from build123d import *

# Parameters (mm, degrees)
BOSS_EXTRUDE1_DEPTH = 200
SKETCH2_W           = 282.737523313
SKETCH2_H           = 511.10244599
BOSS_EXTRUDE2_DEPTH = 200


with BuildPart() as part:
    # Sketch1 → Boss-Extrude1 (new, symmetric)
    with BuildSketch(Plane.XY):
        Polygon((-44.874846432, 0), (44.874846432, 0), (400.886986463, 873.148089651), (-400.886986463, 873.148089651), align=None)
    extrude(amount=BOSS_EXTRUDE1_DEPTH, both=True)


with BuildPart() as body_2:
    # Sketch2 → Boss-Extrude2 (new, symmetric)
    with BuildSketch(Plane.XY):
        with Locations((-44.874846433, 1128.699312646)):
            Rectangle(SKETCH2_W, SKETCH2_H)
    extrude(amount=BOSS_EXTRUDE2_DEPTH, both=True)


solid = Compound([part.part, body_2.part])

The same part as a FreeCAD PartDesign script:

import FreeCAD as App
import Part
import Sketcher
from FreeCAD import Vector
Q = App.Units.Quantity

doc = App.newDocument("Part")
body = doc.addObject("PartDesign::Body", "Body")

sketch1 = doc.addObject("Sketcher::SketchObject", "Sketch")
body.addObject(sketch1)
sketch1.AttachmentSupport = (doc.XY_Plane, [""])
sketch1.MapMode = "FlatFace"
sketch1.addGeometry(Part.LineSegment(Vector(-45, 0, 0), Vector(45, 0, 0)), False)
sketch1.addGeometry(Part.LineSegment(Vector(45, 0, 0), Vector(401, 873, 0)), False)
sketch1.addGeometry(Part.LineSegment(Vector(401, 873, 0), Vector(-401, 873, 0)), False)
sketch1.addGeometry(Part.LineSegment(Vector(-401, 873, 0), Vector(-45, 0, 0)), False)
sketch1.addConstraint(Sketcher.Constraint("Coincident", 0, 2, 1, 1))
sketch1.addConstraint(Sketcher.Constraint("Coincident", 1, 2, 2, 1))
sketch1.addConstraint(Sketcher.Constraint("Coincident", 2, 2, 3, 1))
sketch1.addConstraint(Sketcher.Constraint("Coincident", 3, 2, 0, 1))
sketch1.addConstraint(Sketcher.Constraint("Horizontal", 0))
sketch1.addConstraint(Sketcher.Constraint("Horizontal", 2))
sketch1.addConstraint(Sketcher.Constraint("Symmetric", 0, 2, 3, 2, -1, 1))
sketch1.addConstraint(Sketcher.Constraint("Equal", 1, 3))
sketch1.addConstraint(Sketcher.Constraint("DistanceX", 0, 1, 0, 2, Q("89.749693 mm")))
sketch1.addConstraint(Sketcher.Constraint("DistanceX", 2, 2, 2, 1, Q("801.773973 mm")))
sketch1.addConstraint(Sketcher.Constraint("DistanceY", -1, 1, 1, 2, Q("873.14809 mm")))
pad1 = doc.addObject("PartDesign::Pad", "Pad")
body.addObject(pad1)
pad1.Profile = sketch1
pad1.Length = 400
pad1.Midplane = True
body2 = doc.addObject("PartDesign::Body", "Body001")

sketch2 = doc.addObject("Sketcher::SketchObject", "Sketch001")
body2.addObject(sketch2)
sketch2.AttachmentSupport = (doc.getObject("XY_Plane001"), [""])
sketch2.MapMode = "FlatFace"
sketch2.addGeometry(Part.LineSegment(Vector(-186, 1384, 0), Vector(-186, 873, 0)), False)
sketch2.addGeometry(Part.LineSegment(Vector(-186, 873, 0), Vector(96, 873, 0)), False)
sketch2.addGeometry(Part.LineSegment(Vector(96, 873, 0), Vector(96, 1384, 0)), False)
sketch2.addGeometry(Part.LineSegment(Vector(96, 1384, 0), Vector(-186, 1384, 0)), False)
sketch2.addConstraint(Sketcher.Constraint("Coincident", 0, 2, 1, 1))
sketch2.addConstraint(Sketcher.Constraint("Coincident", 1, 2, 2, 1))
sketch2.addConstraint(Sketcher.Constraint("Coincident", 2, 2, 3, 1))
sketch2.addConstraint(Sketcher.Constraint("Coincident", 3, 2, 0, 1))
sketch2.addConstraint(Sketcher.Constraint("Vertical", 0))
sketch2.addConstraint(Sketcher.Constraint("Horizontal", 1))
sketch2.addConstraint(Sketcher.Constraint("Vertical", 2))
sketch2.addConstraint(Sketcher.Constraint("Horizontal", 3))
sketch2.addConstraint(Sketcher.Constraint("DistanceX", 1, 1, 1, 2, Q("282.737523 mm")))
sketch2.addConstraint(Sketcher.Constraint("DistanceY", 0, 2, 0, 1, Q("511.102446 mm")))
sketch2.addConstraint(Sketcher.Constraint("DistanceX", 0, 2, -1, 1, Q("186.243608 mm")))
sketch2.addConstraint(Sketcher.Constraint("DistanceY", -1, 1, 0, 2, Q("873.14809 mm")))
pad2 = doc.addObject("PartDesign::Pad", "Pad001")
body2.addObject(pad2)
pad2.Profile = sketch2
pad2.Length = 400
pad2.Midplane = True

doc.recompute()
